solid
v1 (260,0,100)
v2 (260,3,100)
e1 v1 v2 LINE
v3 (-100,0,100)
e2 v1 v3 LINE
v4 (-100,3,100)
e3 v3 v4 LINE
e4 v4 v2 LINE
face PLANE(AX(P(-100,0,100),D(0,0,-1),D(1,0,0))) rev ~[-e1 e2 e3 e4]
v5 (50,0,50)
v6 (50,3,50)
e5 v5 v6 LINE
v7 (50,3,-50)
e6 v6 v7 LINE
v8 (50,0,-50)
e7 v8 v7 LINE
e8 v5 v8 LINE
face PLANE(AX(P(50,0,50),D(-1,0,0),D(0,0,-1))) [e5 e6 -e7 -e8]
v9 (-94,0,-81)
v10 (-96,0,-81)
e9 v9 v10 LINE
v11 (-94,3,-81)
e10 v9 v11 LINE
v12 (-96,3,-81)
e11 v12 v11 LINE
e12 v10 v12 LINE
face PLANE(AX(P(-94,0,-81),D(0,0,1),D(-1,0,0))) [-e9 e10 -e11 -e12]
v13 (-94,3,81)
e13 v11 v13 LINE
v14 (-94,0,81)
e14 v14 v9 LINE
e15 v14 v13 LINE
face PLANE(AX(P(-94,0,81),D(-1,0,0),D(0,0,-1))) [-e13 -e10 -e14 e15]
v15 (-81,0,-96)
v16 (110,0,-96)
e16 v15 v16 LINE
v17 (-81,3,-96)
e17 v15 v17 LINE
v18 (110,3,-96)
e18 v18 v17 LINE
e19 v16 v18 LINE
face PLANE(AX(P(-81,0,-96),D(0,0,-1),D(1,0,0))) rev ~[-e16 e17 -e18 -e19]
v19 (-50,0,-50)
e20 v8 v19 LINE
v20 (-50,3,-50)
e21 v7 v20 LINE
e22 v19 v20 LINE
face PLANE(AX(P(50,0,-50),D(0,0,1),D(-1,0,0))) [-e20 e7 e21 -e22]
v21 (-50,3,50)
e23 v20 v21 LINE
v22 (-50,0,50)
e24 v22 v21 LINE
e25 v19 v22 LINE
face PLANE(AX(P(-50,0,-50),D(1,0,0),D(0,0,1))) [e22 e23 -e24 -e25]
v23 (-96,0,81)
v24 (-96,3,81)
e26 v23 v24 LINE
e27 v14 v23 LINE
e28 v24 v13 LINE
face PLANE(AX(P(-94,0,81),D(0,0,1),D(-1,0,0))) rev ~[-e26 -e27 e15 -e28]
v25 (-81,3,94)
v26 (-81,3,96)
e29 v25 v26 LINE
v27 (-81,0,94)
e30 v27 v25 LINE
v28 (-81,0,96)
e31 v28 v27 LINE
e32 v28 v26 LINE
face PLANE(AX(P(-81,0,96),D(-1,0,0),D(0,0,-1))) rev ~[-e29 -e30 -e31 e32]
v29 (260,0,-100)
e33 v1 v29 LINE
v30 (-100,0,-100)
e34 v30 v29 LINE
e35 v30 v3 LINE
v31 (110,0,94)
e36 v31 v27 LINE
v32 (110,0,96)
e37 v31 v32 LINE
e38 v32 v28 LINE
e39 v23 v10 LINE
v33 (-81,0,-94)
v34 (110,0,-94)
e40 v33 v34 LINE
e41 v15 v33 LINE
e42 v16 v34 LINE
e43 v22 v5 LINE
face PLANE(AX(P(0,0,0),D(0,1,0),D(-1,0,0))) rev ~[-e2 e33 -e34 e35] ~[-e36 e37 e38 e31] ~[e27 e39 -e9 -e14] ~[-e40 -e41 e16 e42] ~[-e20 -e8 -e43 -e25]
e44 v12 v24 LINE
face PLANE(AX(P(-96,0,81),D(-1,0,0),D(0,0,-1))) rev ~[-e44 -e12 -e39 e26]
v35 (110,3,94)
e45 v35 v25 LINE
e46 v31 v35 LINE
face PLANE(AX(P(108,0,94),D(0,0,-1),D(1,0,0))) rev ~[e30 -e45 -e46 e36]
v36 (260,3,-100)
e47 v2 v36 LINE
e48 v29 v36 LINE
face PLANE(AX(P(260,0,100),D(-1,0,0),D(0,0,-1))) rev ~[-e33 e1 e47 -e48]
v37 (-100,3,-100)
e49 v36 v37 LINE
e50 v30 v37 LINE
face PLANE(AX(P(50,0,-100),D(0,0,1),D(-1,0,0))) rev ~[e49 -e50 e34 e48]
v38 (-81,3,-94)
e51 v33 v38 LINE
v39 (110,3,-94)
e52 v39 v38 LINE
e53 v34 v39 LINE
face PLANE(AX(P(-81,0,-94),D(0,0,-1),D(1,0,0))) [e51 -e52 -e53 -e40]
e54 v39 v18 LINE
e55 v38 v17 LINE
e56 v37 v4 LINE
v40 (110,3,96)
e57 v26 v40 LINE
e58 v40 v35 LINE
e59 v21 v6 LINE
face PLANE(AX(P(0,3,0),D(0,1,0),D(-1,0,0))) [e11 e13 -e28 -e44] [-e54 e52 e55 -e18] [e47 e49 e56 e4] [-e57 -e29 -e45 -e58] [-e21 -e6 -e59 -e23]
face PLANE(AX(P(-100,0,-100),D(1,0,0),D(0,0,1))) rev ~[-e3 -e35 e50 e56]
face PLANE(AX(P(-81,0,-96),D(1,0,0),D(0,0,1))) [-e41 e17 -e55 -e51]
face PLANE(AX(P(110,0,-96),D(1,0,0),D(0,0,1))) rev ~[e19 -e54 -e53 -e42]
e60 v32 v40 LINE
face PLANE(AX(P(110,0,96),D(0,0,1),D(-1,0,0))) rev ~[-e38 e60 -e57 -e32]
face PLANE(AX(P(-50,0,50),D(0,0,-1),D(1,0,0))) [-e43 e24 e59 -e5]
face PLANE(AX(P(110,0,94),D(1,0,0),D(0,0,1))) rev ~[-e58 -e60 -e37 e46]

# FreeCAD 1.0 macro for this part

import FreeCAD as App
import Part
import Sketcher

doc = App.newDocument("Part")
body = doc.addObject("PartDesign::Body", "Body")

# Sketch on XZ plane
sketch1 = body.newObject("Sketcher::SketchObject", "Sketch")
sketch1.AttachmentSupport = (doc.getObject("XZ_Plane"), [""])
sketch1.MapMode = "FlatFace"
sketch1.addGeometry([
    Part.LineSegment(App.Vector(-100, 100, 0), App.Vector(260, 100, 0)),  # 0
    Part.LineSegment(App.Vector(260, 100, 0), App.Vector(260, -100, 0)),  # 1
    Part.LineSegment(App.Vector(260, -100, 0), App.Vector(-100, -100, 0)),  # 2
    Part.LineSegment(App.Vector(-100, -100, 0), App.Vector(-100, 100, 0)),  # 3
    Part.LineSegment(App.Vector(50, 50, 0), App.Vector(-50, 50, 0)),  # 4
    Part.LineSegment(App.Vector(-50, 50, 0), App.Vector(-50, -50, 0)),  # 5
    Part.LineSegment(App.Vector(-50, -50, 0), App.Vector(50, -50, 0)),  # 6
    Part.LineSegment(App.Vector(50, -50, 0), App.Vector(50, 50, 0)),  # 7
], False)
sketch1.addConstraint([
    Sketcher.Constraint("Coincident", 0, 2, 1, 1),
    Sketcher.Constraint("Coincident", 1, 2, 2, 1),
    Sketcher.Constraint("Coincident", 2, 2, 3, 1),
    Sketcher.Constraint("Coincident", 3, 2, 0, 1),
    Sketcher.Constraint("Coincident", 4, 2, 5, 1),
    Sketcher.Constraint("Coincident", 5, 2, 6, 1),
    Sketcher.Constraint("Coincident", 6, 2, 7, 1),
    Sketcher.Constraint("Coincident", 7, 2, 4, 1),
    Sketcher.Constraint("Horizontal", 0),
    Sketcher.Constraint("Vertical", 1),
    Sketcher.Constraint("Horizontal", 2),
    Sketcher.Constraint("Vertical", 3),
    Sketcher.Constraint("Horizontal", 4),
    Sketcher.Constraint("Vertical", 5),
    Sketcher.Constraint("Horizontal", 6),
    Sketcher.Constraint("Vertical", 7),
    Sketcher.Constraint("Symmetric", 4, 2, 6, 2, -1, 1),
    Sketcher.Constraint("Equal", 6, 5),
    Sketcher.Constraint("DistanceX", 4, 2, 4, 1, 100.0),
    Sketcher.Constraint("DistanceY", 1, 2, 1, 1, 200.0),
    Sketcher.Constraint("DistanceY", -1, 1, 0, 2, 100.0),
    Sketcher.Constraint("DistanceX", 2, 2, -1, 1, 100.0),
    Sketcher.Constraint("DistanceX", 6, 2, 1, 2, 210.0),
])
pad1 = body.newObject("PartDesign::Pad", "Pad")
pad1.Profile = sketch1
pad1.Length = 3
pad1.Reversed = True

# Sketch on XZ plane
sketch2 = body.newObject("Sketcher::SketchObject", "Sketch001")
sketch2.AttachmentSupport = (doc.getObject("XZ_Plane"), [""])
sketch2.MapMode = "FlatFace"
sketch2.addGeometry([
    Part.LineSegment(App.Vector(110, 94, 0), App.Vector(110, 96, 0)),  # 0
    Part.LineSegment(App.Vector(110, 96, 0), App.Vector(-81, 96, 0)),  # 1
    Part.LineSegment(App.Vector(-81, 96, 0), App.Vector(-81, 94, 0)),  # 2
    Part.LineSegment(App.Vector(-81, 94, 0), App.Vector(110, 94, 0)),  # 3
    Part.LineSegment(App.Vector(110, -96, 0), App.Vector(110, -94, 0)),  # 4
    Part.LineSegment(App.Vector(110, -94, 0), App.Vector(-81, -94, 0)),  # 5
    Part.LineSegment(App.Vector(-81, -94, 0), App.Vector(-81, -96, 0)),  # 6
    Part.LineSegment(App.Vector(-81, -96, 0), App.Vector(110, -96, 0)),  # 7
    Part.LineSegment(App.Vector(-94, 81, 0), App.Vector(-96, 81, 0)),  # 8
    Part.LineSegment(App.Vector(-96, 81, 0), App.Vector(-96, -81, 0)),  # 9
    Part.LineSegment(App.Vector(-96, -81, 0), App.Vector(-94, -81, 0)),  # 10
    Part.LineSegment(App.Vector(-94, -81, 0), App.Vector(-94, 81, 0)),  # 11
], False)
sketch2.addConstraint([
    Sketcher.Constraint("Coincident", 0, 2, 1, 1),
    Sketcher.Constraint("Coincident", 1, 2, 2, 1),
    Sketcher.Constraint("Coincident", 2, 2, 3, 1),
    Sketcher.Constraint("Coincident", 3, 2, 0, 1),
    Sketcher.Constraint("Coincident", 4, 2, 5, 1),
    Sketcher.Constraint("Coincident", 5, 2, 6, 1),
    Sketcher.Constraint("Coincident", 6, 2, 7, 1),
    Sketcher.Constraint("Coincident", 7, 2, 4, 1),
    Sketcher.Constraint("Coincident", 8, 2, 9, 1),
    Sketcher.Constraint("Coincident", 9, 2, 10, 1),
    Sketcher.Constraint("Coincident", 10, 2, 11, 1),
    Sketcher.Constraint("Coincident", 11, 2, 8, 1),
    Sketcher.Constraint("Vertical", 0),
    Sketcher.Constraint("Horizontal", 1),
    Sketcher.Constraint("Vertical", 2),
    Sketcher.Constraint("Horizontal", 3),
    Sketcher.Constraint("Vertical", 4),
    Sketcher.Constraint("Horizontal", 5),
    Sketcher.Constraint("Vertical", 6),
    Sketcher.Constraint("Horizontal", 7),
    Sketcher.Constraint("Horizontal", 8),
    Sketcher.Constraint("Vertical", 9),
    Sketcher.Constraint("Horizontal", 10),
    Sketcher.Constraint("Vertical", 11),
    Sketcher.Constraint("Symmetric", 3, 2, 4, 2, -1),
    Sketcher.Constraint("Symmetric", 1, 2, 6, 2, -1),
    Sketcher.Constraint("Equal", 10, 0),
    Sketcher.Constraint("DistanceX", 8, 2, 8, 1, 2.0),
    Sketcher.Constraint("DistanceX", 8, 2, 2, 2, 15.0),
    Sketcher.Constraint("DistanceY", 8, 2, 1, 2, 15.0),
    Sketcher.Constraint("DistanceY", 6, 2, 9, 2, 15.0),
    Sketcher.Constraint("DistanceX", 1, 2, 1, 1, 191.0),
    Sketcher.Constraint("DistanceY", 9, 2, 9, 1, 162.0),
    Sketcher.Constraint("DistanceX", -1, 1, 0, 2, 110.0),
])
pocket1 = body.newObject("PartDesign::Pocket", "Pocket")
pocket1.Profile = sketch2
pocket1.Length = 10

doc.recompute()
